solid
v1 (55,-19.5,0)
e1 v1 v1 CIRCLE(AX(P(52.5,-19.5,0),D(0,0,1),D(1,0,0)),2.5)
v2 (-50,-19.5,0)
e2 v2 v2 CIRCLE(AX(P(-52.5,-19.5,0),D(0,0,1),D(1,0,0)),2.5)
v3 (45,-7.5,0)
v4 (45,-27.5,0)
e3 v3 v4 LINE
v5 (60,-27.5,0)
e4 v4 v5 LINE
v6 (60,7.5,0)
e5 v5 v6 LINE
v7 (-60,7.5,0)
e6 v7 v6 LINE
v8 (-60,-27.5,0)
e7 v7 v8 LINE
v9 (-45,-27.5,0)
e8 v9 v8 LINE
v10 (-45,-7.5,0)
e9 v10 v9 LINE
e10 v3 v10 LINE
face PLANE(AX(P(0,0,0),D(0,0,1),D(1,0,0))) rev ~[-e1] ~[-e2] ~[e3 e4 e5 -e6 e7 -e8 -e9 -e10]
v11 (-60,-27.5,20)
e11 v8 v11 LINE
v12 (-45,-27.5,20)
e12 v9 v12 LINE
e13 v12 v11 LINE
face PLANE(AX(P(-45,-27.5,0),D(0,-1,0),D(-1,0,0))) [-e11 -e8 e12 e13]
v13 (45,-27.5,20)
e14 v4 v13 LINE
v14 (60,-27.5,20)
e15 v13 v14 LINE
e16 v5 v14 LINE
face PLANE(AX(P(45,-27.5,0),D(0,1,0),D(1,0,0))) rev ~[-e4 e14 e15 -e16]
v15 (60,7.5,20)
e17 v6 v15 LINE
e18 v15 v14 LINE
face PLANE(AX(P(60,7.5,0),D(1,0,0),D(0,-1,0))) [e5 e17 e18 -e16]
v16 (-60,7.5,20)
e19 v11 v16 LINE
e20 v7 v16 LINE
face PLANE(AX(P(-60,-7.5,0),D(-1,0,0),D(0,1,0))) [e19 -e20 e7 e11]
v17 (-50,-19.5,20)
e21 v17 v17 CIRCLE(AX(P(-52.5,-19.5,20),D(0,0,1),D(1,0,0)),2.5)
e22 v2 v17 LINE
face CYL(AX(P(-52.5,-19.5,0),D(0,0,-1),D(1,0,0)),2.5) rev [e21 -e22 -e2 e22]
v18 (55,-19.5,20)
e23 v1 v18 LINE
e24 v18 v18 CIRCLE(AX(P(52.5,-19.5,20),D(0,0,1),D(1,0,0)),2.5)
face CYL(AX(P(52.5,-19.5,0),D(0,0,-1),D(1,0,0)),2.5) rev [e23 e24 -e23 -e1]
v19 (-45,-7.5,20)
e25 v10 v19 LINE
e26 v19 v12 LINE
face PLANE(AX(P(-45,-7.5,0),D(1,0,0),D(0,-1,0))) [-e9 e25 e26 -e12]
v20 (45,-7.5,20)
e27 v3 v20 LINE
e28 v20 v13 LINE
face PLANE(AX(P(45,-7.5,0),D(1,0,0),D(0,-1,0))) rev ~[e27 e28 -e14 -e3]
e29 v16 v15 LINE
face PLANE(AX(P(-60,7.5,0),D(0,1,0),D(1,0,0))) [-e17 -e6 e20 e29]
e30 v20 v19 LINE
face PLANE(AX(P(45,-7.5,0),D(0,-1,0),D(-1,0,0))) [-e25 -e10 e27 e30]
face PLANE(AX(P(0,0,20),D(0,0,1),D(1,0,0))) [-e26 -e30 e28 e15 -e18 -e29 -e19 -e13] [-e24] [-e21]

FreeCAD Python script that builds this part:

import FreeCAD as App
import Part
import Sketcher
from FreeCAD import Vector

doc = App.newDocument("Part")
params = doc.addObject("Spreadsheet::Sheet", "Params")
for row, (alias, value) in enumerate([
    ("sketch1_diameter", "5 mm"),
    ("sketch1_width", "120 mm"),
    ("sketch1_width2", "15 mm"),
    ("sketch1_height", "20 mm"),
    ("pad1_length", "20 mm"),
], start=1):
    params.set(f"A{row}", alias)
    params.set(f"B{row}", "=" + value)
    params.setAlias(f"B{row}", alias)

body = doc.addObject("PartDesign::Body", "Body")

# Sketch on XY plane
sketch1 = doc.addObject("Sketcher::SketchObject", "Sketch")
body.addObject(sketch1)
sketch1.AttachmentSupport = (doc.XY_Plane, [""])
sketch1.MapMode = "FlatFace"
sketch1.addGeometry(Part.LineSegment(Vector(60, 7.5, 0), Vector(-60, 7.5, 0)), False)
sketch1.addGeometry(Part.LineSegment(Vector(-60, 7.5, 0), Vector(-60, -27.5, 0)), False)
sketch1.addGeometry(Part.LineSegment(Vector(-60, -27.5, 0), Vector(-45, -27.5, 0)), False)
sketch1.addGeometry(Part.LineSegment(Vector(-45, -27.5, 0), Vector(-45, -7.5, 0)), False)
sketch1.addGeometry(Part.LineSegment(Vector(-45, -7.5, 0), Vector(45, -7.5, 0)), False)
sketch1.addGeometry(Part.LineSegment(Vector(45, -7.5, 0), Vector(45, -27.5, 0)), False)
sketch1.addGeometry(Part.LineSegment(Vector(45, -27.5, 0), Vector(60, -27.5, 0)), False)
sketch1.addGeometry(Part.LineSegment(Vector(60, -27.5, 0), Vector(60, 7.5, 0)), False)
sketch1.addGeometry(Part.Circle(Vector(52.5, -19.5, 0), Vector(0, 0, 1), 2.5), False)
sketch1.addGeometry(Part.Circle(Vector(-52.5, -19.5, 0), Vector(0, 0, 1), 2.5), False)
sketch1.addConstraint(Sketcher.Constraint("Coincident", 0, 2, 1, 1))
sketch1.addConstraint(Sketcher.Constraint("Coincident", 1, 2, 2, 1))
sketch1.addConstraint(Sketcher.Constraint("Coincident", 2, 2, 3, 1))
sketch1.addConstraint(Sketcher.Constraint("Coincident", 3, 2, 4, 1))
sketch1.addConstraint(Sketcher.Constraint("Coincident", 4, 2, 5, 1))
sketch1.addConstraint(Sketcher.Constraint("Coincident", 5, 2, 6, 1))
sketch1.addConstraint(Sketcher.Constraint("Coincident", 6, 2, 7, 1))
sketch1.addConstraint(Sketcher.Constraint("Coincident", 7, 2, 0, 1))
sketch1.addConstraint(Sketcher.Constraint("Horizontal", 0))
sketch1.addConstraint(Sketcher.Constraint("Vertical", 1))
sketch1.addConstraint(Sketcher.Constraint("Horizontal", 2))
sketch1.addConstraint(Sketcher.Constraint("Vertical", 3))
sketch1.addConstraint(Sketcher.Constraint("Horizontal", 4))
sketch1.addConstraint(Sketcher.Constraint("Vertical", 5))
sketch1.addConstraint(Sketcher.Constraint("Horizontal", 6))
sketch1.addConstraint(Sketcher.Constraint("Vertical", 7))
sketch1.addConstraint(Sketcher.Constraint("Equal", 8, 9))
sketch1.addConstraint(Sketcher.Constraint("Symmetric", 8, 3, 9, 3, -2))
sketch1.addConstraint(Sketcher.Constraint("Symmetric", 2, 2, 5, 2, -2))
sketch1.addConstraint(Sketcher.Constraint("Equal", 2, 6))
sketch1.addConstraint(Sketcher.Constraint("Diameter", 8, 5.0))
sketch1.addConstraint(Sketcher.Constraint("DistanceX", 0, 2, 0, 1, 120.0))
sketch1.addConstraint(Sketcher.Constraint("DistanceX", 2, 1, 2, 2, 15.0))
sketch1.addConstraint(Sketcher.Constraint("DistanceY", 3, 1, 3, 2, 20.0))
sketch1.addConstraint(Sketcher.Constraint("DistanceY", 3, 2, 0, 2, 15.0))
sketch1.addConstraint(Sketcher.Constraint("DistanceX", 9, 3, 8, 3, 105.0))
sketch1.addConstraint(Sketcher.Constraint("DistanceY", 9, 3, 0, 2, 27.0))
sketch1.addConstraint(Sketcher.Constraint("DistanceY", 8, 3, -1, 1, 19.5))
sketch1.setExpression("Constraints[20]", "Params.sketch1_diameter")
sketch1.setExpression("Constraints[21]", "Params.sketch1_width")
sketch1.setExpression("Constraints[22]", "Params.sketch1_width2")
sketch1.setExpression("Constraints[23]", "Params.sketch1_height")
pad1 = doc.addObject("PartDesign::Pad", "Pad")
body.addObject(pad1)
pad1.Profile = sketch1
pad1.setExpression("Length", "Params.pad1_length")

doc.recompute()
